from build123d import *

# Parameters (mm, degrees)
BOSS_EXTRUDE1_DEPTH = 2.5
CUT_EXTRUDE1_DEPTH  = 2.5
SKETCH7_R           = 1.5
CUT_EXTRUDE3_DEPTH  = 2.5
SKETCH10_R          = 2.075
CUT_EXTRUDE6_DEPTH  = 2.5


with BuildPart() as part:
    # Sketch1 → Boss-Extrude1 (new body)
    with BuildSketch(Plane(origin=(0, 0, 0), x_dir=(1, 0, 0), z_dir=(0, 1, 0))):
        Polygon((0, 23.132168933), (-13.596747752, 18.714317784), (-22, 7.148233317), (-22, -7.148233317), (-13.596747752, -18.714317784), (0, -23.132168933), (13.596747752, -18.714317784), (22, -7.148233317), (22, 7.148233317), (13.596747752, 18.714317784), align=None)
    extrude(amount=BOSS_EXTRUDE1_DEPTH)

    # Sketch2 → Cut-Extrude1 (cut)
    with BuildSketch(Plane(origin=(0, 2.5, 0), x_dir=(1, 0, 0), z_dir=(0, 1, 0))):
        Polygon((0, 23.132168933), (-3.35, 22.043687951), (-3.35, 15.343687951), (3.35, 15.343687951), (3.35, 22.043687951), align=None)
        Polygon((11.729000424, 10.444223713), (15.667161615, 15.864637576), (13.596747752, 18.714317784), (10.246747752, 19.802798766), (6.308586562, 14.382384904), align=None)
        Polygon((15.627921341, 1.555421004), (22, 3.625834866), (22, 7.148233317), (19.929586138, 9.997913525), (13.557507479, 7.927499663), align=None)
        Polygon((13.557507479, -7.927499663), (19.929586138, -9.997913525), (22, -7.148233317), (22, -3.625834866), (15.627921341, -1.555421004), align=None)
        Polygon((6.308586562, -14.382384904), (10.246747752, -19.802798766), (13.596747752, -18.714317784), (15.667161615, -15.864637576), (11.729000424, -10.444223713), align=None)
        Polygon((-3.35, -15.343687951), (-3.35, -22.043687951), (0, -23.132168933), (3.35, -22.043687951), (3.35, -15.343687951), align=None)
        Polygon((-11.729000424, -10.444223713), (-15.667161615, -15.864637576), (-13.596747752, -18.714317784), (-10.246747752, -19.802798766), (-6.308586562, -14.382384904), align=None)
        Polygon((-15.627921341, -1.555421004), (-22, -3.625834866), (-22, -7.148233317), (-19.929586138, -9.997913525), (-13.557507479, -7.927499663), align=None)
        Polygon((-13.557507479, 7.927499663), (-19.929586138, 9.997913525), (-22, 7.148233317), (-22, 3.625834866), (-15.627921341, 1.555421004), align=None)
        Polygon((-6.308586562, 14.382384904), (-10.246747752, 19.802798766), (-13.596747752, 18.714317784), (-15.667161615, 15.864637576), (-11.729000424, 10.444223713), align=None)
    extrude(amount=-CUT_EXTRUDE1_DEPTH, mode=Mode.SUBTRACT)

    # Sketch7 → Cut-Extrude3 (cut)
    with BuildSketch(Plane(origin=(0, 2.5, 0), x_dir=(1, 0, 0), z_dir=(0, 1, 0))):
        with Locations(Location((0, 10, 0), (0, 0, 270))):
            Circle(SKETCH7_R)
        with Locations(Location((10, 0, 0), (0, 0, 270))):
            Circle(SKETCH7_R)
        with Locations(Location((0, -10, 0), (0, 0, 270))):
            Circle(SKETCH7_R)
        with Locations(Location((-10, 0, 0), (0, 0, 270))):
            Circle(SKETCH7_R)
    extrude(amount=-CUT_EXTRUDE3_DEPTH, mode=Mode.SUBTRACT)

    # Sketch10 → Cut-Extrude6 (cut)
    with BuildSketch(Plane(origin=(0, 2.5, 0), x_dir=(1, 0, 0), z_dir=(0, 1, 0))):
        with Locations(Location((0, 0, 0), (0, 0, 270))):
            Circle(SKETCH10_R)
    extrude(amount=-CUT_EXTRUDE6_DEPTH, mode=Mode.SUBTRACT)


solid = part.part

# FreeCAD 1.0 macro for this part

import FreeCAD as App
import Part
import Sketcher
from FreeCAD import Vector
Q = App.Units.Quantity


def add_polygon(sketch, points):
    """Adds a closed chain of lines whose ends are joined by coincident constraints."""
    first, n = sketch.GeometryCount, len(points)
    for a, b in zip(points, points[1:] + points[:1]):
        sketch.addGeometry(Part.LineSegment(App.Vector(*a, 0), App.Vector(*b, 0)), False)
    for i in range(n):
        sketch.addConstraint(Sketcher.Constraint("Coincident", first + i, 2, first + (i + 1) % n, 1))

doc = App.newDocument("Part")
body = doc.addObject("PartDesign::Body", "Body")

sketch1 = doc.addObject("Sketcher::SketchObject", "Sketch")
body.addObject(sketch1)
sketch1.AttachmentSupport = (doc.XZ_Plane, [""])
sketch1.MapMode = "FlatFace"
add_polygon(sketch1, [(0, -23), (-14, -19), (-22, -7), (-22, 7), (-14, 19), (0, 23), (14, 19), (22, 7), (22, -7), (14, -19)])
sketch1.addConstraint([
    Sketcher.Constraint("Vertical", 2),
    Sketcher.Constraint("Vertical", 7),
    Sketcher.Constraint("Symmetric", 0, 2, 5, 2, -1, 1),
    Sketcher.Constraint("Symmetric", 1, 2, 6, 2, -1, 1),
    Sketcher.Constraint("Symmetric", 3, 2, 8, 2, -1, 1),
    Sketcher.Constraint("Symmetric", 4, 2, 9, 2, -1, 1),
    Sketcher.Constraint("Symmetric", 3, 2, 5, 2, -2),
    Sketcher.Constraint("PointOnObject", 4, 2, -2),
    Sketcher.Constraint("Parallel", 3, 8),
    Sketcher.Constraint("Horizontal", 2, 2, 6, 2),
    Sketcher.Constraint("Equal", 0, 1),
    Sketcher.Constraint("Angle", 0, Q("162 deg")),
    Sketcher.Constraint("Angle", 1, Q("126 deg")),
    Sketcher.Constraint("DistanceX", 1, 2, -1, 1, 22.0),
    Sketcher.Constraint("DistanceY", 2, 1, 2, 2, 14.296467),
])
pad1 = doc.addObject("PartDesign::Pad", "Pad")
body.addObject(pad1)
pad1.Profile = sketch1
pad1.Length = 2.5
pad1.Reversed = True

sketch2 = doc.addObject("Sketcher::SketchObject", "Sketch001")
body.addObject(sketch2)
sketch2.AttachmentSupport = (doc.XZ_Plane, [""])
sketch2.MapMode = "FlatFace"
sketch2.AttachmentOffset = App.Placement(Vector(0, 0, -2.5), App.Rotation())
add_polygon(sketch2, [(0, -23.1), (-3.4, -22), (-3.4, -15.3), (3.4, -15.3), (3.4, -22)])
add_polygon(sketch2, [(11.7, -10.4), (15.7, -15.9), (13.6, -18.7), (10.2, -19.8), (6.3, -14.4)])
add_polygon(sketch2, [(15.6, -1.6), (22, -3.6), (22, -7.1), (19.9, -10), (13.6, -7.9)])
add_polygon(sketch2, [(13.6, 7.9), (19.9, 10), (22, 7.1), (22, 3.6), (15.6, 1.6)])
add_polygon(sketch2, [(6.3, 14.4), (10.2, 19.8), (13.6, 18.7), (15.7, 15.9), (11.7, 10.4)])
add_polygon(sketch2, [(-3.4, 15.3), (-3.4, 22), (0, 23.1), (3.4, 22), (3.4, 15.3)])
add_polygon(sketch2, [(-11.7, 10.4), (-15.7, 15.9), (-13.6, 18.7), (-10.2, 19.8), (-6.3, 14.4)])
add_polygon(sketch2, [(-15.6, 1.6), (-22, 3.6), (-22, 7.1), (-19.9, 10), (-13.6, 7.9)])
add_polygon(sketch2, [(-13.6, -7.9), (-19.9, -10), (-22, -7.1), (-22, -3.6), (-15.6, -1.6)])
add_polygon(sketch2, [(-6.3, -14.4), (-10.2, -19.8), (-13.6, -18.7), (-15.7, -15.9), (-11.7, -10.4)])
sketch2.addConstraint([
    Sketcher.Constraint("Vertical", 1),
    Sketcher.Constraint("Horizontal", 2),
    Sketcher.Constraint("Vertical", 3),
    Sketcher.Constraint("Vertical", 11),
    Sketcher.Constraint("Vertical", 17),
    Sketcher.Constraint("Vertical", 25),
    Sketcher.Constraint("Vertical", 28),
    Sketcher.Constraint("Horizontal", 29),
    Sketcher.Constraint("Vertical", 36),
    Sketcher.Constraint("Vertical", 42),
    Sketcher.Constraint("Symmetric", 3, 2, 25, 2, -1, 1),
    Sketcher.Constraint("Symmetric", 4, 2, 26, 2, -1, 1),
    Sketcher.Constraint("Symmetric", 0, 2, 27, 2, -1, 1),
    Sketcher.Constraint("Symmetric", 5, 2, 30, 2, -1, 1),
    Sketcher.Constraint("Symmetric", 6, 2, 31, 2, -1, 1),
    Sketcher.Constraint("Symmetric", 7, 2, 32, 2, -1, 1),
    Sketcher.Constraint("Symmetric", 8, 2, 33, 2, -1, 1),
    Sketcher.Constraint("Symmetric", 9, 2, 34, 2, -1, 1),
    Sketcher.Constraint("Symmetric", 10, 2, 35, 2, -1, 1),
    Sketcher.Constraint("Symmetric", 12, 2, 37, 2, -1, 1),
    Sketcher.Constraint("Symmetric", 13, 2, 38, 2, -1, 1),
    Sketcher.Constraint("Symmetric", 14, 2, 39, 2, -1, 1),
    Sketcher.Constraint("Symmetric", 15, 2, 40, 2, -1, 1),
    Sketcher.Constraint("Symmetric", 16, 2, 41, 2, -1, 1),
    Sketcher.Constraint("Symmetric", 18, 2, 43, 2, -1, 1),
    Sketcher.Constraint("Symmetric", 19, 2, 44, 2, -1, 1),
    Sketcher.Constraint("Symmetric", 20, 2, 45, 2, -1, 1),
    Sketcher.Constraint("Symmetric", 21, 2, 46, 2, -1, 1),
    Sketcher.Constraint("Symmetric", 22, 2, 47, 2, -1, 1),
    Sketcher.Constraint("Symmetric", 23, 2, 48, 2, -1, 1),
    Sketcher.Constraint("Symmetric", 24, 2, 49, 2, -1, 1),
    Sketcher.Constraint("Symmetric", 0, 2, 3, 2, -2),
    Sketcher.Constraint("Symmetric", 22, 2, 30, 2, -2),
    Sketcher.Constraint("Symmetric", 21, 2, 31, 2, -2),
    Sketcher.Constraint("Symmetric", 20, 2, 32, 2, -2),
    Sketcher.Constraint("Symmetric", 24, 2, 33, 2, -2),
    Sketcher.Constraint("Symmetric", 23, 2, 34, 2, -2),
    Sketcher.Constraint("Symmetric", 17, 2, 35, 2, -2),
    Sketcher.Constraint("Symmetric", 15, 2, 37, 2, -2),
    Sketcher.Constraint("Symmetric", 19, 2, 38, 2, -2),
    Sketcher.Constraint("Symmetric", 18, 2, 39, 2, -2),
    Sketcher.Constraint("PointOnObject", 4, 2, -2),
    Sketcher.Constraint("Parallel", 4, 7),
    Sketcher.Constraint("Parallel", 5, 8),
    Sketcher.Constraint("Perpendicular", 8, 9),
    Sketcher.Constraint("Parallel", 0, 10),
    Sketcher.Constraint("Parallel", 6, 12),
    Sketcher.Constraint("Parallel", 10, 13),
    Sketcher.Constraint("Perpendicular", 13, 14),
    Sketcher.Constraint("Perpendicular", 9, 16),
    Sketcher.Constraint("Parallel", 12, 20),
    Sketcher.Constraint("Parallel", 31, 37),
    Sketcher.Constraint("Parallel", 40, 43),
    Sketcher.Constraint("Equal", 29, 1),
    Sketcher.Constraint("Equal", 3, 25),
    Sketcher.Constraint("Equal", 4, 6),
    Sketcher.Constraint("Equal", 6, 7),
    Sketcher.Constraint("Equal", 5, 8),
    Sketcher.Constraint("Equal", 8, 9),
    Sketcher.Constraint("Equal", 9, 10),
    Sketcher.Constraint("Equal", 7, 12),
    Sketcher.Constraint("Equal", 10, 13),
    Sketcher.Constraint("Equal", 13, 14),
    Sketcher.Constraint("DistanceX", 2, 1, 2, 2, 6.7),
    Sketcher.Constraint("DistanceX", -1, 1, 10, 2, 22.0),
    Sketcher.Constraint("DistanceX", -1, 1, 9, 2, 11.729),
    Sketcher.Constraint("DistanceY", 7, 2, -1, 1, 19.802799),
    Sketcher.Constraint("DistanceY", 13, 2, -1, 1, 7.9275),
    Sketcher.Constraint("DistanceY", 4, 2, -1, 1, 23.132169),
])
pocket1 = doc.addObject("PartDesign::Pocket", "Pocket")
body.addObject(pocket1)
pocket1.Profile = sketch2
pocket1.Length = 2.5
pocket1.Reversed = True

sketch3 = doc.addObject("Sketcher::SketchObject", "Sketch002")
body.addObject(sketch3)
sketch3.AttachmentSupport = (doc.XZ_Plane, [""])
sketch3.MapMode = "FlatFace"
sketch3.AttachmentOffset = App.Placement(Vector(0, 0, -2.5), App.Rotation())
sketch3.addGeometry([
    Part.Circle(Vector(0, -10, 0), Vector(0, 0, 1), 1.5),
    Part.Circle(Vector(10, 0, 0), Vector(0, 0, 1), 1.5),
    Part.Circle(Vector(0, 10, 0), Vector(0, 0, 1), 1.5),
    Part.Circle(Vector(-10, 0, 0), Vector(0, 0, 1), 1.5),
], False)
sketch3.addConstraint([
    Sketcher.Constraint("Equal", 0, 1),
    Sketcher.Constraint("Equal", 1, 2),
    Sketcher.Constraint("Equal", 2, 3),
    Sketcher.Constraint("Symmetric", 0, 3, 2, 3, -1, 1),
    Sketcher.Constraint("Symmetric", 1, 3, 3, 3, -1, 1),
    Sketcher.Constraint("PointOnObject", 0, 3, -2),
    Sketcher.Constraint("PointOnObject", 1, 3, -1),
    Sketcher.Constraint("Diameter", 0, 3.0),
    Sketcher.Constraint("DistanceY", 0, 3, -1, 1, 10.0),
    Sketcher.Constraint("DistanceX", -1, 1, 1, 3, 10.0),
])
pocket2 = doc.addObject("PartDesign::Pocket", "Pocket001")
body.addObject(pocket2)
pocket2.Profile = sketch3
pocket2.Length = 2.5
pocket2.Reversed = True

sketch4 = doc.addObject("Sketcher::SketchObject", "Sketch003")
body.addObject(sketch4)
sketch4.AttachmentSupport = (doc.XZ_Plane, [""])
sketch4.MapMode = "FlatFace"
sketch4.AttachmentOffset = App.Placement(Vector(0, 0, -2.5), App.Rotation())
sketch4.addGeometry(Part.Circle(Vector(0, 0, 0), Vector(0, 0, 1), 2.1), False)
sketch4.addConstraint([
    Sketcher.Constraint("Coincident", 0, 3, -1, 1),
    Sketcher.Constraint("Diameter", 0, 4.15),
])
pocket3 = doc.addObject("PartDesign::Pocket", "Pocket002")
body.addObject(pocket3)
pocket3.Profile = sketch4
pocket3.Length = 2.5
pocket3.Reversed = True

doc.recompute()
